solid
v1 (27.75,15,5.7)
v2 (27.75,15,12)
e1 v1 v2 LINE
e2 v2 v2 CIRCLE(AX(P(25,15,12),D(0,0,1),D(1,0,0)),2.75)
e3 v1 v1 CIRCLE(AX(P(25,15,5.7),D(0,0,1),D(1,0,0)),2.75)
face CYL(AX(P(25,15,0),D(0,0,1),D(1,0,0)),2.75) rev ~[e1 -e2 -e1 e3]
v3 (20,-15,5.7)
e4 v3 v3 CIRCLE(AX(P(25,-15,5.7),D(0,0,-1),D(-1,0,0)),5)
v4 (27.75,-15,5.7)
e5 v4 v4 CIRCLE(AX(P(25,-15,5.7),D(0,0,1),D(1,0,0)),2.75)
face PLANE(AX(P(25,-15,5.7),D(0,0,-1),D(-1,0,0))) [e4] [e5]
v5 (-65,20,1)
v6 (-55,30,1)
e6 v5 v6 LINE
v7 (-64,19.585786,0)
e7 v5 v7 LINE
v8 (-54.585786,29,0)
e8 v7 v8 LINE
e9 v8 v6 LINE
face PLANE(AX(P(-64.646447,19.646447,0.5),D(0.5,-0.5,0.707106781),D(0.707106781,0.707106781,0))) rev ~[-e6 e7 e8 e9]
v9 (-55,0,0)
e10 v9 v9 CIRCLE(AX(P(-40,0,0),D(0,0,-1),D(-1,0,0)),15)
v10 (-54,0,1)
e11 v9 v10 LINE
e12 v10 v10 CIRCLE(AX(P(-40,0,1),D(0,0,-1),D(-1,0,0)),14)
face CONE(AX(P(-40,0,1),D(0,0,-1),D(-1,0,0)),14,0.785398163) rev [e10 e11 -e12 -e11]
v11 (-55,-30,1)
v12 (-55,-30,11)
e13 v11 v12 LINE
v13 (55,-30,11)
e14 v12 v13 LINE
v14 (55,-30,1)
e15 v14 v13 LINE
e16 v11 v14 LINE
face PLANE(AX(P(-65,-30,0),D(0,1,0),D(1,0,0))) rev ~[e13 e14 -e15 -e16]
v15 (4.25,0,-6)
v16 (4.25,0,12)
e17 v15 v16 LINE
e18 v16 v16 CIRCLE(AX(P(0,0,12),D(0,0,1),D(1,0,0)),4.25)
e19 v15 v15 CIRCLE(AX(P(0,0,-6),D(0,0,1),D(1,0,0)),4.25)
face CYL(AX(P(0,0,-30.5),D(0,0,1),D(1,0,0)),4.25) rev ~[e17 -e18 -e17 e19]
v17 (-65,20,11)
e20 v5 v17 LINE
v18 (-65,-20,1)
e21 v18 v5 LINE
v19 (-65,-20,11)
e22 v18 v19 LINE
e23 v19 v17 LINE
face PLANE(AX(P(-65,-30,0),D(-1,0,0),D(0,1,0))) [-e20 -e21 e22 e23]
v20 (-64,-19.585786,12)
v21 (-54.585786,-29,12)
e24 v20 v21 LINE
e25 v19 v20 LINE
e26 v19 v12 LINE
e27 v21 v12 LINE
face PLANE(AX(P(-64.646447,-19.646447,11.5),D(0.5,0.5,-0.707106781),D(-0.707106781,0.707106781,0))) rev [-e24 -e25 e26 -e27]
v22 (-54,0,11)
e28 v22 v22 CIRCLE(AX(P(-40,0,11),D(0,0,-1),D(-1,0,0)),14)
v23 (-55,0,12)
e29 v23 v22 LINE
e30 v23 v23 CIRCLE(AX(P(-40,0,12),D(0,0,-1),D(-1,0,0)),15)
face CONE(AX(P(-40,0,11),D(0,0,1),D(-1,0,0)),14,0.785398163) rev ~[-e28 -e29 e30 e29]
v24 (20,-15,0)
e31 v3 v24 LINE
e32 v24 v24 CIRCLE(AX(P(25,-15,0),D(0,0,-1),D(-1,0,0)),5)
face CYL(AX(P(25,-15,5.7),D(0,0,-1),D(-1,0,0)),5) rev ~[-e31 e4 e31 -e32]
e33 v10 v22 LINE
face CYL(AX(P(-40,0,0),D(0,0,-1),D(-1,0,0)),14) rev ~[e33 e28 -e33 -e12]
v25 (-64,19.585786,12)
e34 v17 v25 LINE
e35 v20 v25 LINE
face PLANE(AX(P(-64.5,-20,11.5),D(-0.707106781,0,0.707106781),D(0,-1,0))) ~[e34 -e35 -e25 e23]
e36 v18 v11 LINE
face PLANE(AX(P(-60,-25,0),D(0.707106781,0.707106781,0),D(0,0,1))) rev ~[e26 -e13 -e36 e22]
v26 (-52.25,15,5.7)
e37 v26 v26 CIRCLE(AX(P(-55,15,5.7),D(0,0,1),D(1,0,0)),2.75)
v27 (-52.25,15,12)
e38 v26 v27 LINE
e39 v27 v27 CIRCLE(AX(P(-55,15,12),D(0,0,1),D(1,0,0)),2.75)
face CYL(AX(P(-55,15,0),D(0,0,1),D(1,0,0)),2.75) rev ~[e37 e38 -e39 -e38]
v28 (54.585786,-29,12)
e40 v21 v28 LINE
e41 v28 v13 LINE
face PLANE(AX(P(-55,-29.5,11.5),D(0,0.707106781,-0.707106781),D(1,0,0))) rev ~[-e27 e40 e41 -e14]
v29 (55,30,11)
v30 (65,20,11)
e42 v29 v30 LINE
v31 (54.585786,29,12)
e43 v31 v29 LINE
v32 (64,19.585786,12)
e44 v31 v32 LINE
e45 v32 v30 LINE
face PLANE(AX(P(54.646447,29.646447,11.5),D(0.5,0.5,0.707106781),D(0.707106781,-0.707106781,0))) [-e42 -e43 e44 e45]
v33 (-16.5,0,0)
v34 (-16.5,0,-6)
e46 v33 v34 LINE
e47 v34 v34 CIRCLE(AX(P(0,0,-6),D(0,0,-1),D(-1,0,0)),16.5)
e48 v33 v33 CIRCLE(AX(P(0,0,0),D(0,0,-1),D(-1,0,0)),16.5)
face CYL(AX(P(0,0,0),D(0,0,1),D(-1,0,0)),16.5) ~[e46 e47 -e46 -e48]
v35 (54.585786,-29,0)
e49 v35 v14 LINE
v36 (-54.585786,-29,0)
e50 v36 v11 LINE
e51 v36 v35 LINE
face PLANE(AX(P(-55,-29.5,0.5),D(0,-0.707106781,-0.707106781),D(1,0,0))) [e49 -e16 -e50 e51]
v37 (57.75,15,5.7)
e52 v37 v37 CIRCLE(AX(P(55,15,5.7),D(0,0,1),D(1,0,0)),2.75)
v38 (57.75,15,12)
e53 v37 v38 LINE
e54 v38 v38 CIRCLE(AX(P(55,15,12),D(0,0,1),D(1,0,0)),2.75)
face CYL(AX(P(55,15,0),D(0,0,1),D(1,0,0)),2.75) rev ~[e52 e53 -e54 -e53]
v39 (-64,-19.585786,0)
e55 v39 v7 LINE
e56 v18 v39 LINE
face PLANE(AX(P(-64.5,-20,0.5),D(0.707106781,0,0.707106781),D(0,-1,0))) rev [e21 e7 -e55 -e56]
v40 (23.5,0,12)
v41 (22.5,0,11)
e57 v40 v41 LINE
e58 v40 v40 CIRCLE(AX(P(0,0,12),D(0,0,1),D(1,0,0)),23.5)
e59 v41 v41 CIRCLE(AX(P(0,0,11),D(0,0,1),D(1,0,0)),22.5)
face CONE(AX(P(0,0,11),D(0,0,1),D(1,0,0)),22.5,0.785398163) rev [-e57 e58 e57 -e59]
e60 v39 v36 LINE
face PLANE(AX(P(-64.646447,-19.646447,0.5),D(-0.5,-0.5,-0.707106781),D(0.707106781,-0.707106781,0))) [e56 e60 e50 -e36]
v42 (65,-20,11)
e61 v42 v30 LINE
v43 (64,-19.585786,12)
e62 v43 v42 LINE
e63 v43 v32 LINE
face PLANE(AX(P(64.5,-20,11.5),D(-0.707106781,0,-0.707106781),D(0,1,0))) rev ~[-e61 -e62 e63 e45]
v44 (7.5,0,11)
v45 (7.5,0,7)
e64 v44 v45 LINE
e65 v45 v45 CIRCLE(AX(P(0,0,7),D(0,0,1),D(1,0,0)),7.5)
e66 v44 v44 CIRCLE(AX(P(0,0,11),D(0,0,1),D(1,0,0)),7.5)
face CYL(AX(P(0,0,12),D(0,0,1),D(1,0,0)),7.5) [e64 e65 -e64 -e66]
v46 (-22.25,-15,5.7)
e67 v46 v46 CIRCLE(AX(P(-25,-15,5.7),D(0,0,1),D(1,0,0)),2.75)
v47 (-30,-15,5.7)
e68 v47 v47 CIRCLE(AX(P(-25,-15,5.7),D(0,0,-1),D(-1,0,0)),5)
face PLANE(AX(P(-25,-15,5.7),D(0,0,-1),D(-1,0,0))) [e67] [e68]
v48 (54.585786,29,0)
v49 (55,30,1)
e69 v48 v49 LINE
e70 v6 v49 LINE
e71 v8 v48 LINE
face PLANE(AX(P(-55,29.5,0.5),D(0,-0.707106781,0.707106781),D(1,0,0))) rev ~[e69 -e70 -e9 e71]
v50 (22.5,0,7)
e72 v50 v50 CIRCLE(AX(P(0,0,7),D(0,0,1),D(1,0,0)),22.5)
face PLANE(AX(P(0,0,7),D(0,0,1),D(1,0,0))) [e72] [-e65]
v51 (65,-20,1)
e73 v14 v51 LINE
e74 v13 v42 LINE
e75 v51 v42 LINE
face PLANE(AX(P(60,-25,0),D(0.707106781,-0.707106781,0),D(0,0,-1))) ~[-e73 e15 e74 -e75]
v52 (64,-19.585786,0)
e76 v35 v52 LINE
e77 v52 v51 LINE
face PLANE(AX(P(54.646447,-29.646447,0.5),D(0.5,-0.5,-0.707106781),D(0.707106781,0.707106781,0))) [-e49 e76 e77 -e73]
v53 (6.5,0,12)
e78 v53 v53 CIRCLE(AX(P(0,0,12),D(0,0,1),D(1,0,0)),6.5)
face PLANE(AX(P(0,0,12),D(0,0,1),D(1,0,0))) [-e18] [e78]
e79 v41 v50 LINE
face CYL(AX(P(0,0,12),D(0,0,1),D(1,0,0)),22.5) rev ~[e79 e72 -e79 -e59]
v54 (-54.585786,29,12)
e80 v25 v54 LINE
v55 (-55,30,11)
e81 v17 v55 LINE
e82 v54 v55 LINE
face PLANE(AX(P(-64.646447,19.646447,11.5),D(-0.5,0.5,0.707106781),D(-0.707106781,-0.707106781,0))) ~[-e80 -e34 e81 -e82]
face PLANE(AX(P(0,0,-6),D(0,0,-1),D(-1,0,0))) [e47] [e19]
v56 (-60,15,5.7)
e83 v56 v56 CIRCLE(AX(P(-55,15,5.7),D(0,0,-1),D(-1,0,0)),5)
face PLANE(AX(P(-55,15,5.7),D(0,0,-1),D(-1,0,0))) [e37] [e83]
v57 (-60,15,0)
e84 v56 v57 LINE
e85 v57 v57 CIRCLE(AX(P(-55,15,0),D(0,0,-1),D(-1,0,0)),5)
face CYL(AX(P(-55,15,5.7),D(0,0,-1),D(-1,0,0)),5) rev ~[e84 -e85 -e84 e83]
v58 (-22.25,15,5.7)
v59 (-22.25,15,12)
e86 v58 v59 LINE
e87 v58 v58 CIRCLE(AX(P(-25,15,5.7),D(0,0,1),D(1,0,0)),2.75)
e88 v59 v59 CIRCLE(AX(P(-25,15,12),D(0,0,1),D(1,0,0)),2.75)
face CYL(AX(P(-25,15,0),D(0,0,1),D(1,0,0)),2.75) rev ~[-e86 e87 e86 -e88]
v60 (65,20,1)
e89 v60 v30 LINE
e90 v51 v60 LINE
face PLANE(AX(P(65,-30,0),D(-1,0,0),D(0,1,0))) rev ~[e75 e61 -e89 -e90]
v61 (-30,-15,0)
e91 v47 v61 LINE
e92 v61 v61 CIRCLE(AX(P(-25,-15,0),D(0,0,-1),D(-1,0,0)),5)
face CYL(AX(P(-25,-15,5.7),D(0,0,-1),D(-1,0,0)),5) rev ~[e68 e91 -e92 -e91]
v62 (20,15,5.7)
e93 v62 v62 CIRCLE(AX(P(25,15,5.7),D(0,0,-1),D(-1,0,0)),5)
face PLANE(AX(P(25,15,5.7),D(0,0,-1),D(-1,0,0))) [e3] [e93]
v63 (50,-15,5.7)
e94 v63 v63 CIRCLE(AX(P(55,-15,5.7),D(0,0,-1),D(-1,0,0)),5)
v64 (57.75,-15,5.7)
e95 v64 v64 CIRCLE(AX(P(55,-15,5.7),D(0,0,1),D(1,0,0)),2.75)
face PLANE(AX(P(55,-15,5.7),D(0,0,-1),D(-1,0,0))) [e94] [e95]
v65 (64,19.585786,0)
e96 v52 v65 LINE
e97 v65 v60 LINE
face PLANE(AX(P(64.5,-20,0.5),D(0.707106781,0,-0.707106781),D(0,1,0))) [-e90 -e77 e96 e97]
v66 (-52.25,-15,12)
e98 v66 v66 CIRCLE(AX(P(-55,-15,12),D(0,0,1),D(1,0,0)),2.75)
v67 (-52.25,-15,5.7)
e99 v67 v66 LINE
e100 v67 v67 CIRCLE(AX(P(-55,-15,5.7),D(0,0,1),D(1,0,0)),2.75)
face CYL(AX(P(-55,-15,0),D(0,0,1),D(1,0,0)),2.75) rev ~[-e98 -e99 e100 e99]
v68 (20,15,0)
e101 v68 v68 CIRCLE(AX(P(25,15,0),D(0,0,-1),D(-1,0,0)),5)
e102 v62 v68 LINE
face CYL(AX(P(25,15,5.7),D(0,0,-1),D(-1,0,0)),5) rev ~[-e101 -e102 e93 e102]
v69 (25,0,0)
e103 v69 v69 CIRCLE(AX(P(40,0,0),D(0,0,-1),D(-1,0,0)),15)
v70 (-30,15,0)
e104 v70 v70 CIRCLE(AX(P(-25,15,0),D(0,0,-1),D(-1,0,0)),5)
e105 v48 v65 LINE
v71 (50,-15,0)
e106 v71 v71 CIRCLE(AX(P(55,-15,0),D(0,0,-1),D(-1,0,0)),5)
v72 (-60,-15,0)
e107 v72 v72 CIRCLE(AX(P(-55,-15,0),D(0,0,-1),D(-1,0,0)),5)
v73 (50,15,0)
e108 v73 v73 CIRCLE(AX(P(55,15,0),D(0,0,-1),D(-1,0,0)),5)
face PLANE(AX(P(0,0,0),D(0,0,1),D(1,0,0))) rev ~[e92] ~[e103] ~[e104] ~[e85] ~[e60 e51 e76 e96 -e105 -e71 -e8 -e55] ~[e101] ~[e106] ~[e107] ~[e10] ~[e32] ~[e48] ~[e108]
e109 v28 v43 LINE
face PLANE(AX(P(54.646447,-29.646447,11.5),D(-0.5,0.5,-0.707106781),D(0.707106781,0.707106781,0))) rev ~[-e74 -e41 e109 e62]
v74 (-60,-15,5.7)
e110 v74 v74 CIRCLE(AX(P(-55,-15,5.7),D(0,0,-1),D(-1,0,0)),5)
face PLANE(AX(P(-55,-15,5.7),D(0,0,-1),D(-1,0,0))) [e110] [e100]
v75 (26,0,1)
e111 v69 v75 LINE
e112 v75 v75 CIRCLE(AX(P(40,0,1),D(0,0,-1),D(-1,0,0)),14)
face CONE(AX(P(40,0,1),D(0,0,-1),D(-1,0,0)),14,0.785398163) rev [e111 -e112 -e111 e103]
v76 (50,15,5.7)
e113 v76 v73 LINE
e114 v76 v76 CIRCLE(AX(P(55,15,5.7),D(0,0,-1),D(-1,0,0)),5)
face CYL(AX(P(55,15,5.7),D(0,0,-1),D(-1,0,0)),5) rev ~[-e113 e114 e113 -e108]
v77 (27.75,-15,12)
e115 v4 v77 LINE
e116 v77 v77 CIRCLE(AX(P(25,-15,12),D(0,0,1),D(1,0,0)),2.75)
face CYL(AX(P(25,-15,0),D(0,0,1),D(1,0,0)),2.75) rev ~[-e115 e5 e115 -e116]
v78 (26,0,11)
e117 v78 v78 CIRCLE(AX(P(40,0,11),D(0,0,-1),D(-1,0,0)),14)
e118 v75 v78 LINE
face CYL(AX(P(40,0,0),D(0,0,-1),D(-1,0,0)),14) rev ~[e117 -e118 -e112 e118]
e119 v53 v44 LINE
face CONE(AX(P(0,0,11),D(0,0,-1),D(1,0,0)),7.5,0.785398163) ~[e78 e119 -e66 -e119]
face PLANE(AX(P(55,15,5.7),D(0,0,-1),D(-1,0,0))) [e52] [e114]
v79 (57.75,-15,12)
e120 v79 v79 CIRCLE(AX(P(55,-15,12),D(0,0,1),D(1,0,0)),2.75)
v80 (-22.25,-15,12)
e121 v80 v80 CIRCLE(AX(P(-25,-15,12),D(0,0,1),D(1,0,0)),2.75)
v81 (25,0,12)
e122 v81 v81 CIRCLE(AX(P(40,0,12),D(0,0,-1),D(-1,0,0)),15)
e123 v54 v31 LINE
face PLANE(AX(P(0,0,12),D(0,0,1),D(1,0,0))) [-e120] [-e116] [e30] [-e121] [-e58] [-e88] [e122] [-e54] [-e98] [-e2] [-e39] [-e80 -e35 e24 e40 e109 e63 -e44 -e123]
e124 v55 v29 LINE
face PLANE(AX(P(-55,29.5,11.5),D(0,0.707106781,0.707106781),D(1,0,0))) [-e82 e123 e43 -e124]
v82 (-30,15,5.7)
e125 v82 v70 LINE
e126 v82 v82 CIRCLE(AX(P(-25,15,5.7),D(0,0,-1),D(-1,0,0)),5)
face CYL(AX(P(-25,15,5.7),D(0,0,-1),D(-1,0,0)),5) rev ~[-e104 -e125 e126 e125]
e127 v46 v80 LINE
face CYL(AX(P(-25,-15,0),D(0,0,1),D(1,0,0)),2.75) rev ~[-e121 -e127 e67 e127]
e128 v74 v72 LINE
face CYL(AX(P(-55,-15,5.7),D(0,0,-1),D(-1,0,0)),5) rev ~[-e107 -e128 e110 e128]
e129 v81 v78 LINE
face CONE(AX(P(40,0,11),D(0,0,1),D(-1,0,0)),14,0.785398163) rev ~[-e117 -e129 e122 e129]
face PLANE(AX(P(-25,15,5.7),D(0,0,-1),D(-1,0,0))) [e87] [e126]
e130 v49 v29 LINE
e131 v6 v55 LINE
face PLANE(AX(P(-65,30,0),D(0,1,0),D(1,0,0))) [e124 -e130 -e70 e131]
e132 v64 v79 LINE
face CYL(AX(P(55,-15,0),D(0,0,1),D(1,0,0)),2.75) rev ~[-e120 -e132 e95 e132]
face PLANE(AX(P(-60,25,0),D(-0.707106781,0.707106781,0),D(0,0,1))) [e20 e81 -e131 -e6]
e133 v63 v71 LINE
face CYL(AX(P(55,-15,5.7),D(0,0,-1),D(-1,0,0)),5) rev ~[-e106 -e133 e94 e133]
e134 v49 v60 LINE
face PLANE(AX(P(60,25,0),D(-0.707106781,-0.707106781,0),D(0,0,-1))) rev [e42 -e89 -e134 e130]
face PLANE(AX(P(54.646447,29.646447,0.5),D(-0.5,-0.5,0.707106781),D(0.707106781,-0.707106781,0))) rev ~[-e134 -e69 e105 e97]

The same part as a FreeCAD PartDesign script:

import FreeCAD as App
import Part
import Sketcher

V = App.Vector
Q = App.Units.Quantity


def edges_at(feature, points):
    """Names of the edges that pass closest to the given points."""
    edges = feature.Shape.Edges
    near = lambda p: min(range(len(edges)), key=lambda i: edges[i].distToShape(Part.Vertex(*p))[0])
    return sorted({f"Edge{near(p) + 1}" for p in points})

doc = App.newDocument("Part")
body = doc.addObject("PartDesign::Body", "Body")

# Sketch on XY plane
sketch1 = body.newObject("Sketcher::SketchObject", "Sketch")
sketch1.AttachmentSupport = (doc.getObject("XY_Plane"), [""])
sketch1.MapMode = "FlatFace"
sketch1.addGeometry([
    Part.LineSegment(V(-65, 30, 0), V(-65, -30, 0)),
    Part.LineSegment(V(-65, -30, 0), V(65, -30, 0)),
    Part.LineSegment(V(65, -30, 0), V(65, 30, 0)),
    Part.LineSegment(V(65, 30, 0), V(-65, 30, 0)),
], False)
sketch1.addConstraint([
    Sketcher.Constraint("Coincident", 0, 2, 1, 1),
    Sketcher.Constraint("Coincident", 1, 2, 2, 1),
    Sketcher.Constraint("Coincident", 2, 2, 3, 1),
    Sketcher.Constraint("Coincident", 3, 2, 0, 1),
    Sketcher.Constraint("Vertical", 0),
    Sketcher.Constraint("Horizontal", 1),
    Sketcher.Constraint("Vertical", 2),
    Sketcher.Constraint("Horizontal", 3),
    Sketcher.Constraint("Symmetric", 0, 2, 2, 2, -1, 1),
    Sketcher.Constraint("DistanceX", 1, 1, 1, 2, Q("130 mm")),
    Sketcher.Constraint("DistanceY", 0, 2, 0, 1, Q("60 mm")),
])
pad1 = body.newObject("PartDesign::Pad", "Pad")
pad1.Profile = sketch1
pad1.Length = 12

# Sketch on XY plane
sketch2 = body.newObject("Sketcher::SketchObject", "Sketch001")
sketch2.AttachmentSupport = (doc.getObject("XY_Plane"), [""])
sketch2.MapMode = "FlatFace"
sketch2.addGeometry(Part.Circle(V(0, 0, 0), V(0, 0, 1), 16.5), False)
sketch2.addConstraint([
    Sketcher.Constraint("Coincident", 0, 3, -1, 1),
    Sketcher.Constraint("Diameter", 0, Q("33 mm")),
])
pad2 = body.newObject("PartDesign::Pad", "Pad001")
pad2.Profile = sketch2
pad2.Length = 6
pad2.Reversed = True

# Sketch on XY plane
sketch3 = body.newObject("Sketcher::SketchObject", "Sketch002")
sketch3.AttachmentSupport = (doc.getObject("XY_Plane"), [""])
sketch3.MapMode = "FlatFace"
sketch3.AttachmentOffset = App.Placement(V(0, 0, -6), App.Rotation())
sketch3.addGeometry(Part.Circle(V(0, 0, 0), V(0, 0, 1), 4.25), False)
sketch3.addConstraint([
    Sketcher.Constraint("Coincident", 0, 3, -1, 1),
    Sketcher.Constraint("Diameter", 0, Q("8.5 mm")),
])
doc.recompute()
hole = body.newObject("PartDesign::Hole", "Hole")
hole.Profile = sketch3
hole.ThreadType = "None"
hole.Diameter = 8.5
hole.DepthType = "Dimension"
hole.Depth = 24.5
hole.DrillPoint = "Angled"
hole.DrillPointAngle = 118
hole.Reversed = True

# Sketch on XY plane
sketch4 = body.newObject("Sketcher::SketchObject", "Sketch003")
sketch4.AttachmentSupport = (doc.getObject("XY_Plane"), [""])
sketch4.MapMode = "FlatFace"
sketch4.addGeometry([
    Part.Circle(V(55, 15, 0), V(0, 0, 1), 2.75),  # 0
    Part.Circle(V(55, -15, 0), V(0, 0, 1), 2.75),  # 1
    Part.Circle(V(25, 15, 0), V(0, 0, 1), 2.75),  # 2
    Part.Circle(V(25, -15, 0), V(0, 0, 1), 2.75),  # 3
    Part.Circle(V(-55, -15, 0), V(0, 0, 1), 2.75),  # 4
    Part.Circle(V(-25, 15, 0), V(0, 0, 1), 2.75),  # 5
    Part.Circle(V(-25, -15, 0), V(0, 0, 1), 2.75),  # 6
    Part.Circle(V(-55, 15, 0), V(0, 0, 1), 2.75),  # 7
], False)
sketch4.addConstraint([
    Sketcher.Constraint("Equal", 0, 1),
    Sketcher.Constraint("Equal", 1, 2),
    Sketcher.Constraint("Equal", 2, 3),
    Sketcher.Constraint("Equal", 3, 4),
    Sketcher.Constraint("Equal", 4, 5),
    Sketcher.Constraint("Equal", 5, 6),
    Sketcher.Constraint("Equal", 6, 7),
    Sketcher.Constraint("Symmetric", 0, 3, 4, 3, -1, 1),
    Sketcher.Constraint("Symmetric", 3, 3, 5, 3, -1, 1),
    Sketcher.Constraint("Symmetric", 2, 3, 6, 3, -1, 1),
    Sketcher.Constraint("Symmetric", 1, 3, 7, 3, -1, 1),
    Sketcher.Constraint("Symmetric", 1, 3, 4, 3, -2),
    Sketcher.Constraint("Symmetric", 2, 3, 5, 3, -2),
    Sketcher.Constraint("Horizontal", 0, 3, 2, 3),
    Sketcher.Constraint("Diameter", 0, Q("5.5 mm")),
    Sketcher.Constraint("DistanceX", -1, 1, 0, 3, Q("55 mm")),
    Sketcher.Constraint("DistanceY", -1, 1, 0, 3, Q("15 mm")),
    Sketcher.Constraint("DistanceX", -1, 1, 2, 3, Q("25 mm")),
])
doc.recompute()
hole2 = body.newObject("PartDesign::Hole", "Hole001")
hole2.Profile = sketch4
hole2.ThreadType = "None"
hole2.Diameter = 5.5
hole2.DepthType = "Dimension"
hole2.Depth = 15
hole2.DrillPoint = "Angled"
hole2.DrillPointAngle = 118
hole2.HoleCutType = "Counterbore"
hole2.HoleCutDiameter = 10
hole2.HoleCutDepth = 5.7
hole2.Reversed = True
doc.recompute()

chamfer = body.newObject("PartDesign::Chamfer", "Chamfer")
chamfer.Base = (hole2, edges_at(hole2, [
    (65, -30, 6),
    (-65, -30, 6),
    (-65, 30, 6),
    (65, 30, 6),
]))
chamfer.Size = 10
doc.recompute()

chamfer2 = body.newObject("PartDesign::Chamfer", "Chamfer001")
chamfer2.Base = (chamfer, edges_at(chamfer, [
    (0, -30, 0),
    (0, -30, 12),
    (65, 0, 0),
    (-65, 0, 0),
    (0, 30, 0),
    (60, 25, 0),
    (60, -25, 0),
    (-60, 25, 0),
    (-60, -25, 0),
    (-65, 0, 12),
    (65, 0, 12),
    (0, 30, 12),
    (60, 25, 12),
    (60, -25, 12),
    (-60, 25, 12),
    (-60, -25, 12),
]))
chamfer2.Size = 1

# Sketch on XY plane
sketch5 = body.newObject("Sketcher::SketchObject", "Sketch004")
sketch5.AttachmentSupport = (doc.getObject("XY_Plane"), [""])
sketch5.MapMode = "FlatFace"
sketch5.addGeometry([
    Part.Circle(V(40, 0, 0), V(0, 0, 1), 14),
    Part.Circle(V(-40, 0, 0), V(0, 0, 1), 14),
], False)
sketch5.addConstraint([
    Sketcher.Constraint("Equal", 0, 1),
    Sketcher.Constraint("Symmetric", 0, 3, 1, 3, -1, 1),
    Sketcher.Constraint("PointOnObject", 0, 3, -1),
    Sketcher.Constraint("Diameter", 0, Q("28 mm")),
    Sketcher.Constraint("DistanceX", -1, 1, 0, 3, Q("40 mm")),
])
pocket1 = body.newObject("PartDesign::Pocket", "Pocket")
pocket1.Profile = sketch5
pocket1.Type = "ThroughAll"
pocket1.Reversed = True
doc.recompute()

chamfer3 = body.newObject("PartDesign::Chamfer", "Chamfer002")
chamfer3.Base = (pocket1, edges_at(pocket1, [
    (54, 0, 12),
    (54, 0, 0),
    (-26, 0, 12),
    (-26, 0, 0),
]))
chamfer3.Size = 1

# Sketch on XY plane
sketch6 = body.newObject("Sketcher::SketchObject", "Sketch005")
sketch6.AttachmentSupport = (doc.getObject("XY_Plane"), [""])
sketch6.MapMode = "FlatFace"
sketch6.AttachmentOffset = App.Placement(V(0, 0, 12), App.Rotation())
sketch6.addGeometry([
    Part.Circle(V(0, 0, 0), V(0, 0, 1), 22.5),
    Part.Circle(V(0, 0, 0), V(0, 0, 1), 7.5),
], False)
sketch6.addConstraint([
    Sketcher.Constraint("Coincident", 0, 3, -1, 1),
    Sketcher.Constraint("Coincident", 1, 3, -1, 1),
    Sketcher.Constraint("Diameter", 0, Q("45 mm")),
    Sketcher.Constraint("Diameter", 1, Q("15 mm")),
])
pocket2 = body.newObject("PartDesign::Pocket", "Pocket001")
pocket2.Profile = sketch6
pocket2.Length = 5
doc.recompute()

chamfer4 = body.newObject("PartDesign::Chamfer", "Chamfer003")
chamfer4.Base = (pocket2, edges_at(pocket2, [(-22.5, 0, 12), (-7.5, 0, 12)]))
chamfer4.Size = 1

doc.recompute()
